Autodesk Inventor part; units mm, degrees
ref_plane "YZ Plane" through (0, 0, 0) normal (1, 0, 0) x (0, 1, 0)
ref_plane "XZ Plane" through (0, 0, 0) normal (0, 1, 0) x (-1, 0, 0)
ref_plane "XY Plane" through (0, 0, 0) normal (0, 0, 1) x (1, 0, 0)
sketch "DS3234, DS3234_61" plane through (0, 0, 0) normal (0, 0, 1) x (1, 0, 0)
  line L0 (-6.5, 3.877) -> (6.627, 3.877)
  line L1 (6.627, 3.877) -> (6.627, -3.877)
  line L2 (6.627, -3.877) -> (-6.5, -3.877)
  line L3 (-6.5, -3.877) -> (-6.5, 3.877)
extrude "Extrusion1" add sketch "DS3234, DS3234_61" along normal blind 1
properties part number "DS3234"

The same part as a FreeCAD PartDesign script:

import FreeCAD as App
import Part
import Sketcher
from FreeCAD import Vector
Q = App.Units.Quantity


def add_polygon(sketch, points):
    """Adds a closed chain of lines whose ends are joined by coincident constraints."""
    first, n = sketch.GeometryCount, len(points)
    for a, b in zip(points, points[1:] + points[:1]):
        sketch.addGeometry(Part.LineSegment(App.Vector(*a, 0), App.Vector(*b, 0)), False)
    for i in range(n):
        sketch.addConstraint(Sketcher.Constraint("Coincident", first + i, 2, first + (i + 1) % n, 1))

doc = App.newDocument("Part")
body = doc.addObject("PartDesign::Body", "Body")

sketch1 = body.newObject("Sketcher::SketchObject", "Sketch")
sketch1.AttachmentSupport = (doc.getObject("XY_Plane"), [""])
sketch1.MapMode = "FlatFace"
add_polygon(sketch1, [(7, 4), (-6, 4), (-6, -4), (7, -4)])
sketch1.addConstraint([
    Sketcher.Constraint("Horizontal", 0),
    Sketcher.Constraint("Vertical", 1),
    Sketcher.Constraint("Horizontal", 2),
    Sketcher.Constraint("Vertical", 3),
    Sketcher.Constraint("DistanceX", 0, 2, -1, 1, Q("6.5 mm")),
    Sketcher.Constraint("DistanceX", 0, 2, 0, 1, Q("13.127 mm")),
    Sketcher.Constraint("DistanceY", 1, 2, 1, 1, Q("7.754 mm")),
    Sketcher.Constraint("DistanceY", -1, 1, 0, 2, Q("3.877 mm")),
])
pad1 = body.newObject("PartDesign::Pad", "Pad")
pad1.Profile = sketch1
pad1.Length = 1

doc.recompute()
